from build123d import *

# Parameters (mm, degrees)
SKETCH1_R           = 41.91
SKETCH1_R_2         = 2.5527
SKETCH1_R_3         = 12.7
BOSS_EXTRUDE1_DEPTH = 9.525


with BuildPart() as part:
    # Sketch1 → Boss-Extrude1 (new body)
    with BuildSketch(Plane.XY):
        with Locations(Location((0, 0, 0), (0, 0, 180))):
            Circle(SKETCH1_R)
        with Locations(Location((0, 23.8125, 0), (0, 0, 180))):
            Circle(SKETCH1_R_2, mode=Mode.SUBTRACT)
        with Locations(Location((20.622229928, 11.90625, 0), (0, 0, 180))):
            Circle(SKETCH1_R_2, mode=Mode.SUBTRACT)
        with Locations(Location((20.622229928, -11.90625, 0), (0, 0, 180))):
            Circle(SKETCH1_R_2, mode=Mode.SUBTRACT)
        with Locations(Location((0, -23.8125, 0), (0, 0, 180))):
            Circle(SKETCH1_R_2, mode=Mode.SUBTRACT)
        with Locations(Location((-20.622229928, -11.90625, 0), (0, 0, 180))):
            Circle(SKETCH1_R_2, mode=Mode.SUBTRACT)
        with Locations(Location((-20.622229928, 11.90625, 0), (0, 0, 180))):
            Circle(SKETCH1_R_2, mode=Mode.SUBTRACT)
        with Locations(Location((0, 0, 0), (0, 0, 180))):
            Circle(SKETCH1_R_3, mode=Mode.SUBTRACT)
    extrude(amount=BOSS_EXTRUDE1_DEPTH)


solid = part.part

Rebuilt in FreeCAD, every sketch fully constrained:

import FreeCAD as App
import Part
import Sketcher
Q = App.Units.Quantity

doc = App.newDocument("Part")
body = doc.addObject("PartDesign::Body", "Body")

# Sketch on XY plane
sketch1 = doc.addObject("Sketcher::SketchObject", "Sketch")
body.addObject(sketch1)
sketch1.AttachmentSupport = (doc.XY_Plane, [""])
sketch1.MapMode = "FlatFace"
sketch1.addGeometry([
    Part.Circle(App.Vector(0, 0, 0), App.Vector(0, 0, 1), 41.9),  # 0
    Part.Circle(App.Vector(20.6, 11.9, 0), App.Vector(0, 0, 1), 2.6),  # 1
    Part.Circle(App.Vector(0, 23.8, 0), App.Vector(0, 0, 1), 2.6),  # 2
    Part.Circle(App.Vector(-20.6, 11.9, 0), App.Vector(0, 0, 1), 2.6),  # 3
    Part.Circle(App.Vector(20.6, -11.9, 0), App.Vector(0, 0, 1), 2.6),  # 4
    Part.Circle(App.Vector(0, -23.8, 0), App.Vector(0, 0, 1), 2.6),  # 5
    Part.Circle(App.Vector(0, 0, 0), App.Vector(0, 0, 1), 12.7),  # 6
    Part.Circle(App.Vector(-20.6, -11.9, 0), App.Vector(0, 0, 1), 2.6),  # 7
], False)
sketch1.addConstraint([
    Sketcher.Constraint("Coincident", 0, 3, -1, 1),
    Sketcher.Constraint("Coincident", 6, 3, -1, 1),
    Sketcher.Constraint("Equal", 1, 2),
    Sketcher.Constraint("Equal", 2, 3),
    Sketcher.Constraint("Equal", 3, 4),
    Sketcher.Constraint("Equal", 4, 5),
    Sketcher.Constraint("Equal", 5, 7),
    Sketcher.Constraint("Symmetric", 3, 3, 4, 3, -1, 1),
    Sketcher.Constraint("Symmetric", 2, 3, 5, 3, -1, 1),
    Sketcher.Constraint("Symmetric", 1, 3, 7, 3, -1, 1),
    Sketcher.Constraint("Symmetric", 1, 3, 3, 3, -2),
    Sketcher.Constraint("PointOnObject", 2, 3, -2),
    Sketcher.Constraint("Diameter", 6, Q("1 in")),
    Sketcher.Constraint("Diameter", 0, Q("3.3 in")),
    Sketcher.Constraint("Diameter", 1, Q("0.201 in")),
    Sketcher.Constraint("DistanceY", -1, 1, 1, 3, Q("0.46875 in")),
    Sketcher.Constraint("DistanceY", -1, 1, 2, 3, Q("0.9375 in")),
    Sketcher.Constraint("DistanceX", -1, 1, 1, 3, 20.62223),
])
pad1 = doc.addObject("PartDesign::Pad", "Pad")
body.addObject(pad1)
pad1.Profile = sketch1
pad1.Length = Q("0.375 in")

doc.recompute()
